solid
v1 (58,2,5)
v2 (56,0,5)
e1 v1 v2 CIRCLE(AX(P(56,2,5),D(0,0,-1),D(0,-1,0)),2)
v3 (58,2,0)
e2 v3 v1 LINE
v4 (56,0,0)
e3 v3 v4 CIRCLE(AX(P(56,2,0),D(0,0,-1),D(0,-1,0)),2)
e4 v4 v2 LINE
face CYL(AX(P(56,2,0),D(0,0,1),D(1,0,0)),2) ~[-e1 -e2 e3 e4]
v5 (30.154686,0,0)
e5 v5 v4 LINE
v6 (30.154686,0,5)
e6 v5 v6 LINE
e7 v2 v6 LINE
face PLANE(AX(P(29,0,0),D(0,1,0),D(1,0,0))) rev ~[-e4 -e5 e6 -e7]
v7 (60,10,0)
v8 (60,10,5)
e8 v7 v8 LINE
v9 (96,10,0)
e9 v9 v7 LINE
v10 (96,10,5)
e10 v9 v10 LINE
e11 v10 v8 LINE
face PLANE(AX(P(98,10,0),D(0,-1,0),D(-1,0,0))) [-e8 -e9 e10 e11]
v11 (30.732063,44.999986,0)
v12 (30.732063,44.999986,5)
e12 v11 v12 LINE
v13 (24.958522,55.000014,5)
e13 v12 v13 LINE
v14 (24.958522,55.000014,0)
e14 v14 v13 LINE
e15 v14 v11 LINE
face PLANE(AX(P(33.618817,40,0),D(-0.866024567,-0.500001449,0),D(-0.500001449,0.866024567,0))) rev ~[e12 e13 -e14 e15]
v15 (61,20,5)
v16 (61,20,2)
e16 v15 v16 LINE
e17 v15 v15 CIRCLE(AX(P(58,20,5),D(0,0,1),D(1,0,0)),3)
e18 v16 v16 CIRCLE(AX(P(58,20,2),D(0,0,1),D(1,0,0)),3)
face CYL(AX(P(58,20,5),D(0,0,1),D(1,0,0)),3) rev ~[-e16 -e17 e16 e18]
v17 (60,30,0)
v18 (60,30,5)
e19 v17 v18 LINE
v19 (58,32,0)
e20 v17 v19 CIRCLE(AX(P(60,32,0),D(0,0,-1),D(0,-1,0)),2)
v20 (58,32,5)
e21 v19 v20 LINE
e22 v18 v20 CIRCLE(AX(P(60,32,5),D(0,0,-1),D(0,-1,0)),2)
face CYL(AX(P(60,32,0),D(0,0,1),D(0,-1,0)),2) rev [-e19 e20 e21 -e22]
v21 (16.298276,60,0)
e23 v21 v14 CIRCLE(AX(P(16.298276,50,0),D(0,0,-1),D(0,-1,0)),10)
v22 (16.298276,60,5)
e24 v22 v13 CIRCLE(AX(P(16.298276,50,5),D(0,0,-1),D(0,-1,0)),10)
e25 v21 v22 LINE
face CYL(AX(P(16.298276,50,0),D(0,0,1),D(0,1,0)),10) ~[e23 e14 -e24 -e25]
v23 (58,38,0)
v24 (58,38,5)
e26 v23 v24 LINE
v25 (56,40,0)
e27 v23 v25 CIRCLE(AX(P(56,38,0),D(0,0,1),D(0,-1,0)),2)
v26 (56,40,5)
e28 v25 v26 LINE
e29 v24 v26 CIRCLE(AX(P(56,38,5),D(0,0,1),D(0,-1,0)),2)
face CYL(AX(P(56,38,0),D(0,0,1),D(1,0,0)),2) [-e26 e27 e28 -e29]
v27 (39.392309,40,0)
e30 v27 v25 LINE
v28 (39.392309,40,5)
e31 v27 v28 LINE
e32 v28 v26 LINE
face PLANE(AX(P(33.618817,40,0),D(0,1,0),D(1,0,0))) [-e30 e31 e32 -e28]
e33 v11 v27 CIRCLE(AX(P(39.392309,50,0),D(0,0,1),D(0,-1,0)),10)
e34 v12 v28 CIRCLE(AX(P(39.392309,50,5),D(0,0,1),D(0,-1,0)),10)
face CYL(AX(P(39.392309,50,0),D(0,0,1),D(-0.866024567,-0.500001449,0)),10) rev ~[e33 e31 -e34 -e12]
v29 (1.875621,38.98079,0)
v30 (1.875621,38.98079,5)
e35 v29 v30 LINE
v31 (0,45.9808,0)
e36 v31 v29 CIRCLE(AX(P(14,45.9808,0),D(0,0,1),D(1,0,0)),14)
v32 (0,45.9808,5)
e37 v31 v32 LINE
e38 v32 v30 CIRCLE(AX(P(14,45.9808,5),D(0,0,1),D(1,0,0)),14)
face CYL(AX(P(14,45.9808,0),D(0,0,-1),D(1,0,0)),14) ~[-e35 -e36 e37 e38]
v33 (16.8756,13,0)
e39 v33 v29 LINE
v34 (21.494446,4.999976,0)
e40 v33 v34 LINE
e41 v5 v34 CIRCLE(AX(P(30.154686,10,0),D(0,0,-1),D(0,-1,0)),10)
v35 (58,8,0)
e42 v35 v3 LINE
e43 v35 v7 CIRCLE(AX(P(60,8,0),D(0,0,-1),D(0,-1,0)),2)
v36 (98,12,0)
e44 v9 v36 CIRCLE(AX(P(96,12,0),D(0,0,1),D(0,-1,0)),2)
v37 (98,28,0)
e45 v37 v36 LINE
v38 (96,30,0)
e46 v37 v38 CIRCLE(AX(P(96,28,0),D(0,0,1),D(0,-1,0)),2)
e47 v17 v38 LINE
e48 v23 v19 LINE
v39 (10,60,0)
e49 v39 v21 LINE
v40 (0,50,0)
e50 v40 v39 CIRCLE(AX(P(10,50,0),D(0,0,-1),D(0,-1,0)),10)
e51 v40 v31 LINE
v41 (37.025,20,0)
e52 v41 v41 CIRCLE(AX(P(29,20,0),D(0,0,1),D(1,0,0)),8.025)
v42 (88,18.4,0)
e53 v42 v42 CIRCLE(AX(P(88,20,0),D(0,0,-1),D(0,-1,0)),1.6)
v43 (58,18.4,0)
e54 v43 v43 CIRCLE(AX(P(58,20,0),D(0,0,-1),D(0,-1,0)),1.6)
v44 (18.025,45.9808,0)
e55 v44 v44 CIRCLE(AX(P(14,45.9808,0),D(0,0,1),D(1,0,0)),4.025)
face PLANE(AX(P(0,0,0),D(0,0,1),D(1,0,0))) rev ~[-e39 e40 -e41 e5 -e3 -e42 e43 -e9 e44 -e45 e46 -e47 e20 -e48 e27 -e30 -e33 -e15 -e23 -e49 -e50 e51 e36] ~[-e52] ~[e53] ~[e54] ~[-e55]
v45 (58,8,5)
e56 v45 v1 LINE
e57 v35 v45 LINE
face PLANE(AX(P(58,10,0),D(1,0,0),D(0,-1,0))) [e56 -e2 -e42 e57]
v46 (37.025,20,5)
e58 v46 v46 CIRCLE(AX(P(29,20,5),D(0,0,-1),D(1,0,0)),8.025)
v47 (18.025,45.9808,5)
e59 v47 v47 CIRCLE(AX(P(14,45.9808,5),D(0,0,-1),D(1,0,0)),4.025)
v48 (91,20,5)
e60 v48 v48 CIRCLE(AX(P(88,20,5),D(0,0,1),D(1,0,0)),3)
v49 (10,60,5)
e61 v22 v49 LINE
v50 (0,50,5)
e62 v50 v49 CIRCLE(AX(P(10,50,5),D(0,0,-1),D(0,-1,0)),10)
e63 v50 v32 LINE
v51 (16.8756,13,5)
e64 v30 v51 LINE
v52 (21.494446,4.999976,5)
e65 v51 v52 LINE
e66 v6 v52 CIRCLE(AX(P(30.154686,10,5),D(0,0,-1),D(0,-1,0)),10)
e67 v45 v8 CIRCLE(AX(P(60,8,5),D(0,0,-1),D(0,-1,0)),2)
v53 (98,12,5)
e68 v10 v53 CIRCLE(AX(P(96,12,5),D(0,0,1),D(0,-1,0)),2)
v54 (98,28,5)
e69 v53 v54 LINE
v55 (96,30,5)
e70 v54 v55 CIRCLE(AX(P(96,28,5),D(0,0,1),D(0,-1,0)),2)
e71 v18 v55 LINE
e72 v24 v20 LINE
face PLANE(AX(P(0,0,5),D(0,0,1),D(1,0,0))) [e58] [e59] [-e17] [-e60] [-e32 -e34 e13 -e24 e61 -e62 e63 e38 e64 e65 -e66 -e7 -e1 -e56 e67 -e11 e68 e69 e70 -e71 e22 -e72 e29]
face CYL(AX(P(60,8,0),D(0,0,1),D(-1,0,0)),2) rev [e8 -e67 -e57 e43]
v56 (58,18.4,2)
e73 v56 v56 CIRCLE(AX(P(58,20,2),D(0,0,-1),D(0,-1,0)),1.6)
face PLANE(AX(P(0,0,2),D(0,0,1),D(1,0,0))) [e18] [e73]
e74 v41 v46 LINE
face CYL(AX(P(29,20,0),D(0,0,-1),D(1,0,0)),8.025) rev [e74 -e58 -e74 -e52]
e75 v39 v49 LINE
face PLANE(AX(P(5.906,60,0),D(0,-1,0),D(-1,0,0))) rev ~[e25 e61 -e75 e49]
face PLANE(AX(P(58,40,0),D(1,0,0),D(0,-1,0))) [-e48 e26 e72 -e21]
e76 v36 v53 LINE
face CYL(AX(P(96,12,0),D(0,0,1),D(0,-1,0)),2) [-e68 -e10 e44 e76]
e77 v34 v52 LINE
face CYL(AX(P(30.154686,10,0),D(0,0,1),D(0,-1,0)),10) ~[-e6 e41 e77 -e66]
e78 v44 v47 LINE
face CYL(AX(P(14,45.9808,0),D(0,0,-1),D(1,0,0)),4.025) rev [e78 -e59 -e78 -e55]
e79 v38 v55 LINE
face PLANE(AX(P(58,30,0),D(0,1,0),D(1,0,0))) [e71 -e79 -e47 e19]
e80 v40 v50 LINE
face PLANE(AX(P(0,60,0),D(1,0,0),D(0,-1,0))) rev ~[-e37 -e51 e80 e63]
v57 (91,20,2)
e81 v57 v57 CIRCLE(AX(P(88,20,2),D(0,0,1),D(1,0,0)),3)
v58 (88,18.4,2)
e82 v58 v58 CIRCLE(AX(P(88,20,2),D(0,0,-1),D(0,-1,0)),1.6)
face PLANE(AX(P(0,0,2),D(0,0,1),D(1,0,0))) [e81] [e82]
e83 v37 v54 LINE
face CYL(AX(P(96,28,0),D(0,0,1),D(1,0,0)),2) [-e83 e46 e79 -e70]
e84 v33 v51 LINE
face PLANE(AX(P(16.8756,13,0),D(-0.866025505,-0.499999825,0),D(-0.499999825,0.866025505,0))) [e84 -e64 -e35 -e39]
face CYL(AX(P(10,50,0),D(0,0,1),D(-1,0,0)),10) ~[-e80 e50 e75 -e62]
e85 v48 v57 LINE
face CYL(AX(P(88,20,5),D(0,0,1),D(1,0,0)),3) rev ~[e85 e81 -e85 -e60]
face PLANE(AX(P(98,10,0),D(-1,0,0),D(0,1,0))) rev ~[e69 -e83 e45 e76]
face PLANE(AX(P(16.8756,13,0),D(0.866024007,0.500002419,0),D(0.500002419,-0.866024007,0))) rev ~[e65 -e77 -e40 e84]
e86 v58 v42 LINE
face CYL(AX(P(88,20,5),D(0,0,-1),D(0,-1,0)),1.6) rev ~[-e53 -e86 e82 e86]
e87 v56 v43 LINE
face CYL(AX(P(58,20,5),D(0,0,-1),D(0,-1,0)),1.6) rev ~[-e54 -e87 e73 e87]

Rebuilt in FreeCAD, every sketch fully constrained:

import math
import FreeCAD as App
import Part
import Sketcher
Q = App.Units.Quantity


def edges_at(feature, points):
    """Names of the edges that pass closest to the given points."""
    edges = feature.Shape.Edges
    near = lambda p: min(range(len(edges)), key=lambda i: edges[i].distToShape(Part.Vertex(*p))[0])
    return sorted({f"Edge{near(p) + 1}" for p in points})

doc = App.newDocument("Part")
body = doc.addObject("PartDesign::Body", "Body")

# Sketch on XY plane
sketch1 = body.newObject("Sketcher::SketchObject", "Sketch")
sketch1.AttachmentSupport = (doc.getObject("XY_Plane"), [""])
sketch1.MapMode = "FlatFace"
sketch1.addGeometry([
    Part.LineSegment(App.Vector(58, 0, 0), App.Vector(58, 10, 0)),  # 0
    Part.LineSegment(App.Vector(58, 10, 0), App.Vector(98, 10, 0)),  # 1
    Part.LineSegment(App.Vector(98, 10, 0), App.Vector(98, 30, 0)),  # 2
    Part.LineSegment(App.Vector(98, 30, 0), App.Vector(58, 30, 0)),  # 3
    Part.LineSegment(App.Vector(58, 30, 0), App.Vector(58, 40, 0)),  # 4
    Part.LineSegment(App.Vector(58, 40, 0), App.Vector(33.6, 40, 0)),  # 5
    Part.LineSegment(App.Vector(33.6, 40, 0), App.Vector(22.1, 60, 0)),  # 6
    Part.LineSegment(App.Vector(22.1, 60, 0), App.Vector(0, 60, 0)),  # 7
    Part.LineSegment(App.Vector(0, 60, 0), App.Vector(0, 46, 0)),  # 8
    Part.ArcOfCircle(Part.Circle(App.Vector(14, 46, 0), App.Vector(0, 0, 1), 14), math.radians(180), math.radians(210)),  # 9
    Part.LineSegment(App.Vector(1.9, 39, 0), App.Vector(16.9, 13, 0)),  # 10
    Part.LineSegment(App.Vector(16.9, 13, 0), App.Vector(24.4, 0, 0)),  # 11
    Part.LineSegment(App.Vector(24.4, 0, 0), App.Vector(58, 0, 0)),  # 12
    Part.Circle(App.Vector(29, 20, 0), App.Vector(0, 0, 1), 8),  # 13
    Part.Circle(App.Vector(14, 46, 0), App.Vector(0, 0, 1), 4),  # 14
], False)
sketch1.addConstraint([
    Sketcher.Constraint("Coincident", 0, 2, 1, 1),
    Sketcher.Constraint("Coincident", 1, 2, 2, 1),
    Sketcher.Constraint("Coincident", 2, 2, 3, 1),
    Sketcher.Constraint("Coincident", 3, 2, 4, 1),
    Sketcher.Constraint("Coincident", 4, 2, 5, 1),
    Sketcher.Constraint("Coincident", 5, 2, 6, 1),
    Sketcher.Constraint("Coincident", 6, 2, 7, 1),
    Sketcher.Constraint("Coincident", 7, 2, 8, 1),
    Sketcher.Constraint("Tangent", 8, 2, 9, 1),
    Sketcher.Constraint("Tangent", 9, 2, 10, 1),
    Sketcher.Constraint("Coincident", 10, 2, 11, 1),
    Sketcher.Constraint("Coincident", 11, 2, 12, 1),
    Sketcher.Constraint("Coincident", 12, 2, 0, 1),
    Sketcher.Constraint("Vertical", 0),
    Sketcher.Constraint("Horizontal", 1),
    Sketcher.Constraint("Vertical", 2),
    Sketcher.Constraint("Horizontal", 3),
    Sketcher.Constraint("Vertical", 4),
    Sketcher.Constraint("Horizontal", 5),
    Sketcher.Constraint("Horizontal", 7),
    Sketcher.Constraint("Vertical", 8),
    Sketcher.Constraint("Horizontal", 12),
    Sketcher.Constraint("Coincident", 14, 3, 9, 3),
    Sketcher.Constraint("PointOnObject", 7, 2, -2),
    Sketcher.Constraint("PointOnObject", 11, 2, -1),
    Sketcher.Constraint("Parallel", 6, 10),
    Sketcher.Constraint("Parallel", 10, 11),
    Sketcher.Constraint("Vertical", 0, 2, 3, 2),
    Sketcher.Constraint("Equal", 0, 4),
    Sketcher.Constraint("Radius", 9, Q("14 mm")),
    Sketcher.Constraint("Diameter", 13, Q("16.05 mm")),
    Sketcher.Constraint("Diameter", 14, Q("8.05 mm")),
    Sketcher.Constraint("DistanceX", 1, 1, 1, 2, Q("40 mm")),
    Sketcher.Constraint("DistanceY", 0, 1, 0, 2, Q("10 mm")),
    Sketcher.Constraint("DistanceY", 2, 1, 2, 2, Q("20 mm")),
    Sketcher.Constraint("Angle", 10, Q("-60 deg")),
    Sketcher.Constraint("Distance", 10, Q("30 mm")),
    Sketcher.Constraint("DistanceY", -1, 1, 13, 3, Q("20 mm")),
    Sketcher.Constraint("DistanceX", -1, 1, 1, 2, Q("98 mm")),
    Sketcher.Constraint("DistanceY", -1, 1, 6, 2, Q("60 mm")),
    Sketcher.Constraint("DistanceX", 13, 3, 1, 2, Q("69 mm")),
    Sketcher.Constraint("DistanceY", -1, 1, 10, 2, Q("13 mm")),
    Sketcher.Constraint("DistanceX", 5, 2, 5, 1, Q("24.3812 mm")),
])
pad1 = body.newObject("PartDesign::Pad", "Pad")
pad1.Profile = sketch1
pad1.Length = 5

# Sketch on XY plane
sketch2 = body.newObject("Sketcher::SketchObject", "Sketch001")
sketch2.AttachmentSupport = (doc.getObject("XY_Plane"), [""])
sketch2.MapMode = "FlatFace"
sketch2.AttachmentOffset = App.Placement(App.Vector(0, 0, 5), App.Rotation())
sketch2.addGeometry([
    Part.Circle(App.Vector(88, 20, 0), App.Vector(0, 0, 1), 1.6),
    Part.Circle(App.Vector(58, 20, 0), App.Vector(0, 0, 1), 1.6),
], False)
sketch2.addConstraint([
    Sketcher.Constraint("Equal", 0, 1),
    Sketcher.Constraint("Horizontal", 0, 3, 1, 3),
    Sketcher.Constraint("Diameter", 0, Q("3.2 mm")),
    Sketcher.Constraint("DistanceX", -1, 1, 0, 3, Q("88 mm")),
    Sketcher.Constraint("DistanceY", -1, 1, 0, 3, Q("20 mm")),
    Sketcher.Constraint("DistanceX", -1, 1, 1, 3, Q("58 mm")),
])
doc.recompute()
hole = body.newObject("PartDesign::Hole", "Hole")
hole.Profile = sketch2
hole.ThreadType = "None"
hole.Diameter = 3.2
hole.DepthType = "Dimension"
hole.Depth = 10
hole.DrillPoint = "Flat"
doc.recompute()

fillet = body.newObject("PartDesign::Fillet", "Fillet")
fillet.Base = (hole, edges_at(hole, [
    (58, 40, 2.5),
    (58, 30, 2.5),
    (98, 30, 2.5),
    (98, 10, 2.5),
    (58, 0, 2.5),
    (58, 10, 2.5),
]))
fillet.Radius = 2
doc.recompute()

fillet2 = body.newObject("PartDesign::Fillet", "Fillet001")
fillet2.Base = (fillet, edges_at(fillet, [
    (24.381, 0, 2.5),
    (0, 60, 2.5),
    (22.072, 60, 2.5),
    (33.619, 40, 2.5),
]))
fillet2.Radius = 10

# Sketch on XY plane
sketch3 = body.newObject("Sketcher::SketchObject", "Sketch002")
sketch3.AttachmentSupport = (doc.getObject("XY_Plane"), [""])
sketch3.MapMode = "FlatFace"
sketch3.AttachmentOffset = App.Placement(App.Vector(0, 0, 5), App.Rotation())
sketch3.addGeometry([
    Part.Circle(App.Vector(58, 20, 0), App.Vector(0, 0, 1), 3),
    Part.Circle(App.Vector(88, 20, 0), App.Vector(0, 0, 1), 3),
], False)
sketch3.addConstraint([
    Sketcher.Constraint("Equal", 0, 1),
    Sketcher.Constraint("Horizontal", 0, 3, 1, 3),
    Sketcher.Constraint("Diameter", 0, Q("6 mm")),
    Sketcher.Constraint("DistanceX", -1, 1, 0, 3, Q("58 mm")),
    Sketcher.Constraint("DistanceY", -1, 1, 0, 3, Q("20 mm")),
    Sketcher.Constraint("DistanceX", -1, 1, 1, 3, Q("88 mm")),
])
pocket1 = body.newObject("PartDesign::Pocket", "Pocket")
pocket1.Profile = sketch3
pocket1.Length = 3

doc.recompute()
